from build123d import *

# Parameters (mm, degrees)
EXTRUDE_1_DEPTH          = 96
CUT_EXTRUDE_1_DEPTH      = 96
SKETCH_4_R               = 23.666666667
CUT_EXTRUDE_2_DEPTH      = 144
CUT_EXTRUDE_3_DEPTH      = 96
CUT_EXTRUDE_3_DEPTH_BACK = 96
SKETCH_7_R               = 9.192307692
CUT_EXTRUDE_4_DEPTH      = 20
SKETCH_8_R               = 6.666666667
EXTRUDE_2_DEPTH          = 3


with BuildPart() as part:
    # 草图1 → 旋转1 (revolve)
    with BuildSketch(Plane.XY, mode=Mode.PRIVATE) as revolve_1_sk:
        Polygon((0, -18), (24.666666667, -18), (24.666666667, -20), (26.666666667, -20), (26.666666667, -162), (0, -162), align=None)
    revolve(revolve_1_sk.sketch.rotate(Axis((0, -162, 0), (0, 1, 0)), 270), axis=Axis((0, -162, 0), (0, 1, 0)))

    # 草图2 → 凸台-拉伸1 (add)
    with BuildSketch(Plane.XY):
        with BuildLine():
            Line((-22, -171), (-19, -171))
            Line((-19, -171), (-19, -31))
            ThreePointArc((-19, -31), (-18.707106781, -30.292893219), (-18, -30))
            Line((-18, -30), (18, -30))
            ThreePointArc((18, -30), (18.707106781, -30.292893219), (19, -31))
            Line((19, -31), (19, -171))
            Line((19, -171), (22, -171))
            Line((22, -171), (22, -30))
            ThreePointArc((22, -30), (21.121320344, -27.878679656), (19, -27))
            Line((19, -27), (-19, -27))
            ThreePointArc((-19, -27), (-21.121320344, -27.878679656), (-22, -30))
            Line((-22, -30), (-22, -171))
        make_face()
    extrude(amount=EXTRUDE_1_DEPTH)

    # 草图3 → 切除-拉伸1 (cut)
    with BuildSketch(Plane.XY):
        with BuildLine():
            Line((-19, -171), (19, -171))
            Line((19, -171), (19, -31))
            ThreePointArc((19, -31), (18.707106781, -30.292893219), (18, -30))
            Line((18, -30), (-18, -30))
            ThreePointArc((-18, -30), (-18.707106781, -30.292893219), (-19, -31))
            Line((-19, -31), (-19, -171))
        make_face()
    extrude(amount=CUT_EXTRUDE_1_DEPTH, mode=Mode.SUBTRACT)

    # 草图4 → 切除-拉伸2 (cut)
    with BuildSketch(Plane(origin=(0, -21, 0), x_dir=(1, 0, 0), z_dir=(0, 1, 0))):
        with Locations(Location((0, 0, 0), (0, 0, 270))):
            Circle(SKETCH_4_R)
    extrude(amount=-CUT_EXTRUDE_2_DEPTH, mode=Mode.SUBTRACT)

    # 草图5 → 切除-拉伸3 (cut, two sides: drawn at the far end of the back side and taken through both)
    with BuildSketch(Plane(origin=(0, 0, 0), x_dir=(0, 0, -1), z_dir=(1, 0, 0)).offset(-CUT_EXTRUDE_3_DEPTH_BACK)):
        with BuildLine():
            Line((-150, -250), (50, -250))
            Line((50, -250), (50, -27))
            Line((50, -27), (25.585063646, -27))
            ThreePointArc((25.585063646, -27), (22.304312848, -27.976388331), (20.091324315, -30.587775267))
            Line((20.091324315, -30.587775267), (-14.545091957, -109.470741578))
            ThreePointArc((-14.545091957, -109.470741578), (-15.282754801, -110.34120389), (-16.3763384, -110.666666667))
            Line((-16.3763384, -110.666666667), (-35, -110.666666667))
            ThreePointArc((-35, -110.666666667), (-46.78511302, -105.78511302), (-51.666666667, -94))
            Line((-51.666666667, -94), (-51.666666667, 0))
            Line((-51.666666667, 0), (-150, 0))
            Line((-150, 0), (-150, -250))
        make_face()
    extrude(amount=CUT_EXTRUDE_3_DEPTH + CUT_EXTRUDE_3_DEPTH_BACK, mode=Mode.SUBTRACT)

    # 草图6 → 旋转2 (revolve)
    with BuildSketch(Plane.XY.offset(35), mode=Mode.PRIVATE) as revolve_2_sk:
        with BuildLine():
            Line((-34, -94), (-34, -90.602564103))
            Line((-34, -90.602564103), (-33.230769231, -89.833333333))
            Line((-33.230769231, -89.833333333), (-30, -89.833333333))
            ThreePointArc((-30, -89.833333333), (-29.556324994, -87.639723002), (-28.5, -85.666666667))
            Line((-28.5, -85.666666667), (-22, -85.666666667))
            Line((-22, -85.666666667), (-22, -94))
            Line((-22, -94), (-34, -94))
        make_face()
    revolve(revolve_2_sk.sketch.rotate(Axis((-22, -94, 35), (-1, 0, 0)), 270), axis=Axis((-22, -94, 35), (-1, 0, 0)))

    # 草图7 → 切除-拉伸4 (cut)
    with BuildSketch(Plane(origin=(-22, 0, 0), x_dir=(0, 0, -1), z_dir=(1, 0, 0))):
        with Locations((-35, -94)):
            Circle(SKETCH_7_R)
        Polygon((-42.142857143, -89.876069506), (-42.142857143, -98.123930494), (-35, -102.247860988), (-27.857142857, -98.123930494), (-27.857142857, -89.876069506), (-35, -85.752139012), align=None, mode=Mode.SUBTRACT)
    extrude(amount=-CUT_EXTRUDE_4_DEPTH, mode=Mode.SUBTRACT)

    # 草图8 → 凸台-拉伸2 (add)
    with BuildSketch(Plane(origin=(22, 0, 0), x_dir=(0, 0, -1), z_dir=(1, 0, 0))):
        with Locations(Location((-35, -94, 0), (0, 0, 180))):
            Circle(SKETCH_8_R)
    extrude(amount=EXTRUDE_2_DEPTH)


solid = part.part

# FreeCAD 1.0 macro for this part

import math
import FreeCAD as App
import Part
import Sketcher

V = App.Vector
Q = App.Units.Quantity


def add_polygon(sketch, points):
    """Adds a closed chain of lines whose ends are joined by coincident constraints."""
    first, n = sketch.GeometryCount, len(points)
    for a, b in zip(points, points[1:] + points[:1]):
        sketch.addGeometry(Part.LineSegment(App.Vector(*a, 0), App.Vector(*b, 0)), False)
    for i in range(n):
        sketch.addConstraint(Sketcher.Constraint("Coincident", first + i, 2, first + (i + 1) % n, 1))

doc = App.newDocument("Part")
body = doc.addObject("PartDesign::Body", "Body")

sketch1 = body.newObject("Sketcher::SketchObject", "Sketch")
sketch1.AttachmentSupport = (doc.getObject("XY_Plane"), [""])
sketch1.MapMode = "FlatFace"
add_polygon(sketch1, [(24.666667, -18), (0, -18), (0, -162), (26.666667, -162), (26.666667, -20), (24.666667, -20)])
sketch1.addConstraint([
    Sketcher.Constraint("Horizontal", 0),
    Sketcher.Constraint("Vertical", 1),
    Sketcher.Constraint("Horizontal", 2),
    Sketcher.Constraint("Vertical", 3),
    Sketcher.Constraint("Horizontal", 4),
    Sketcher.Constraint("Vertical", 5),
    Sketcher.Constraint("PointOnObject", 0, 2, -2),
    Sketcher.Constraint("Equal", 4, 5),
    Sketcher.Constraint("DistanceX", 4, 2, 4, 1, 2.0),
    Sketcher.Constraint("DistanceY", 1, 2, 1, 1, 144.0),
    Sketcher.Constraint("DistanceY", 0, 2, -1, 1, 18.0),
    Sketcher.Constraint("DistanceX", 0, 2, 0, 1, 24.666667),
])
revolution = body.newObject("PartDesign::Revolution", "Revolution")
revolution.Profile = sketch1
revolution.ReferenceAxis = (sketch1, ["V_Axis"])
revolution.Angle = 360

sketch2 = body.newObject("Sketcher::SketchObject", "Sketch001")
sketch2.AttachmentSupport = (doc.getObject("XY_Plane"), [""])
sketch2.MapMode = "FlatFace"
sketch2.addGeometry([
    Part.LineSegment(V(-22, -171, 0), V(-19, -171, 0)),
    Part.LineSegment(V(-19, -171, 0), V(-19, -31, 0)),
    Part.ArcOfCircle(Part.Circle(V(-18, -31, 0), V(0, 0, 1), 1), math.radians(90), math.radians(180)),
    Part.LineSegment(V(-18, -30, 0), V(18, -30, 0)),
    Part.ArcOfCircle(Part.Circle(V(18, -31, 0), V(0, 0, 1), 1), math.radians(0), math.radians(90)),
    Part.LineSegment(V(19, -31, 0), V(19, -171, 0)),
    Part.LineSegment(V(19, -171, 0), V(22, -171, 0)),
    Part.LineSegment(V(22, -171, 0), V(22, -30, 0)),
    Part.ArcOfCircle(Part.Circle(V(19, -30, 0), V(0, 0, 1), 3), math.radians(0), math.radians(90)),
    Part.LineSegment(V(19, -27, 0), V(-19, -27, 0)),
    Part.ArcOfCircle(Part.Circle(V(-19, -30, 0), V(0, 0, 1), 3), math.radians(90), math.radians(180)),
    Part.LineSegment(V(-22, -30, 0), V(-22, -171, 0)),
], False)
sketch2.addConstraint([
    Sketcher.Constraint("Coincident", 0, 2, 1, 1),
    Sketcher.Constraint("Tangent", 1, 2, 2, 2),
    Sketcher.Constraint("Tangent", 2, 1, 3, 1),
    Sketcher.Constraint("Tangent", 3, 2, 4, 2),
    Sketcher.Constraint("Tangent", 4, 1, 5, 1),
    Sketcher.Constraint("Coincident", 5, 2, 6, 1),
    Sketcher.Constraint("Coincident", 6, 2, 7, 1),
    Sketcher.Constraint("Tangent", 7, 2, 8, 1),
    Sketcher.Constraint("Tangent", 8, 2, 9, 1),
    Sketcher.Constraint("Tangent", 9, 2, 10, 1),
    Sketcher.Constraint("Tangent", 10, 2, 11, 1),
    Sketcher.Constraint("Coincident", 11, 2, 0, 1),
    Sketcher.Constraint("Horizontal", 0),
    Sketcher.Constraint("Vertical", 1),
    Sketcher.Constraint("Horizontal", 3),
    Sketcher.Constraint("Vertical", 5),
    Sketcher.Constraint("Horizontal", 6),
    Sketcher.Constraint("Vertical", 7),
    Sketcher.Constraint("Horizontal", 9),
    Sketcher.Constraint("Vertical", 11),
    Sketcher.Constraint("Equal", 2, 4),
    Sketcher.Constraint("Equal", 8, 10),
    Sketcher.Constraint("Symmetric", 0, 2, 5, 2, -2),
    Sketcher.Constraint("Horizontal", 10, 3, 2, 1),
    Sketcher.Constraint("Vertical", 10, 3, 0, 2),
    Sketcher.Constraint("Vertical", 8, 3, 4, 1),
    Sketcher.Constraint("Radius", 2, 1.0),
    Sketcher.Constraint("Radius", 8, 3.0),
    Sketcher.Constraint("DistanceX", 3, 1, 3, 2, 36.0),
    Sketcher.Constraint("DistanceY", 1, 1, 1, 2, 140.0),
    Sketcher.Constraint("DistanceY", 2, 3, -1, 1, 31.0),
])
pad1 = body.newObject("PartDesign::Pad", "Pad")
pad1.Profile = sketch2
pad1.Length = 96

sketch3 = body.newObject("Sketcher::SketchObject", "Sketch002")
sketch3.AttachmentSupport = (doc.getObject("XY_Plane"), [""])
sketch3.MapMode = "FlatFace"
sketch3.addGeometry([
    Part.LineSegment(V(-19, -171, 0), V(19, -171, 0)),
    Part.LineSegment(V(19, -171, 0), V(19, -31, 0)),
    Part.ArcOfCircle(Part.Circle(V(18, -31, 0), V(0, 0, 1), 1), math.radians(0), math.radians(90)),
    Part.LineSegment(V(18, -30, 0), V(-18, -30, 0)),
    Part.ArcOfCircle(Part.Circle(V(-18, -31, 0), V(0, 0, 1), 1), math.radians(90), math.radians(180)),
    Part.LineSegment(V(-19, -31, 0), V(-19, -171, 0)),
], False)
sketch3.addConstraint([
    Sketcher.Constraint("Coincident", 0, 2, 1, 1),
    Sketcher.Constraint("Tangent", 1, 2, 2, 1),
    Sketcher.Constraint("Tangent", 2, 2, 3, 1),
    Sketcher.Constraint("Tangent", 3, 2, 4, 1),
    Sketcher.Constraint("Tangent", 4, 2, 5, 1),
    Sketcher.Constraint("Coincident", 5, 2, 0, 1),
    Sketcher.Constraint("Horizontal", 0),
    Sketcher.Constraint("Vertical", 1),
    Sketcher.Constraint("Horizontal", 3),
    Sketcher.Constraint("Vertical", 5),
    Sketcher.Constraint("Equal", 2, 4),
    Sketcher.Constraint("Radius", 2, 1.0),
    Sketcher.Constraint("DistanceX", 0, 1, 0, 2, 38.0),
    Sketcher.Constraint("DistanceY", 1, 1, 1, 2, 140.0),
    Sketcher.Constraint("DistanceX", -1, 1, 2, 3, 18.0),
    Sketcher.Constraint("DistanceY", 2, 3, -1, 1, 31.0),
])
pocket1 = body.newObject("PartDesign::Pocket", "Pocket")
pocket1.Profile = sketch3
pocket1.Length = 96
pocket1.Reversed = True

sketch4 = body.newObject("Sketcher::SketchObject", "Sketch003")
sketch4.AttachmentSupport = (doc.getObject("XZ_Plane"), [""])
sketch4.MapMode = "FlatFace"
sketch4.AttachmentOffset = App.Placement(V(0, 0, 21), App.Rotation())
sketch4.addGeometry(Part.Circle(V(0, 0, 0), V(0, 0, 1), 23.666667), False)
sketch4.addConstraint([
    Sketcher.Constraint("Coincident", 0, 3, -1, 1),
    Sketcher.Constraint("Diameter", 0, 47.333333),
])
pocket2 = body.newObject("PartDesign::Pocket", "Pocket001")
pocket2.Profile = sketch4
pocket2.Length = 144
pocket2.Reversed = True

sketch5 = body.newObject("Sketcher::SketchObject", "Sketch004")
sketch5.AttachmentSupport = (doc.getObject("YZ_Plane"), [""])
sketch5.MapMode = "FlatFace"
sketch5.addGeometry([
    Part.LineSegment(V(-250, 150, 0), V(-250, -50, 0)),
    Part.LineSegment(V(-250, -50, 0), V(-27, -50, 0)),
    Part.LineSegment(V(-27, -50, 0), V(-27, -25.585064, 0)),
    Part.ArcOfCircle(Part.Circle(V(-33, -25.585064, 0), V(0, 0, 1), 6), math.radians(0), math.radians(66.294388)),
    Part.LineSegment(V(-30.587775, -20.091324, 0), V(-109.470742, 14.545092, 0)),
    Part.ArcOfCircle(Part.Circle(V(-108.666667, 16.376338, 0), V(0, 0, 1), 2), math.radians(180), math.radians(246.294388)),
    Part.LineSegment(V(-110.666667, 16.376338, 0), V(-110.666667, 35, 0)),
    Part.ArcOfCircle(Part.Circle(V(-94, 35, 0), V(0, 0, 1), 16.666667), math.radians(90), math.radians(180)),
    Part.LineSegment(V(-94, 51.666667, 0), V(0, 51.666667, 0)),
    Part.LineSegment(V(0, 51.666667, 0), V(0, 150, 0)),
    Part.LineSegment(V(0, 150, 0), V(-250, 150, 0)),
], False)
sketch5.addConstraint([
    Sketcher.Constraint("Coincident", 0, 2, 1, 1),
    Sketcher.Constraint("Coincident", 1, 2, 2, 1),
    Sketcher.Constraint("Tangent", 2, 2, 3, 1),
    Sketcher.Constraint("Tangent", 3, 2, 4, 1),
    Sketcher.Constraint("Tangent", 4, 2, 5, 2),
    Sketcher.Constraint("Tangent", 5, 1, 6, 1),
    Sketcher.Constraint("Tangent", 6, 2, 7, 2),
    Sketcher.Constraint("Tangent", 7, 1, 8, 1),
    Sketcher.Constraint("Coincident", 8, 2, 9, 1),
    Sketcher.Constraint("Coincident", 9, 2, 10, 1),
    Sketcher.Constraint("Coincident", 10, 2, 0, 1),
    Sketcher.Constraint("Vertical", 0),
    Sketcher.Constraint("Horizontal", 1),
    Sketcher.Constraint("Vertical", 2),
    Sketcher.Constraint("Vertical", 6),
    Sketcher.Constraint("Horizontal", 8),
    Sketcher.Constraint("Vertical", 9),
    Sketcher.Constraint("Horizontal", 10),
    Sketcher.Constraint("PointOnObject", 8, 2, -2),
    Sketcher.Constraint("Radius", 3, 6.0),
    Sketcher.Constraint("Radius", 5, 2.0),
    Sketcher.Constraint("DistanceX", 1, 1, 1, 2, 223.0),
    Sketcher.Constraint("DistanceX", 8, 1, 8, 2, 94.0),
    Sketcher.Constraint("DistanceX", 10, 2, 10, 1, 250.0),
    Sketcher.Constraint("DistanceY", 0, 2, 0, 1, 200.0),
    Sketcher.Constraint("DistanceY", -1, 1, 7, 3, 35.0),
    Sketcher.Constraint("DistanceY", 0, 2, -1, 1, 50.0),
    Sketcher.Constraint("Radius", 7, 16.666667),
    Sketcher.Constraint("DistanceY", 6, 1, 6, 2, 18.623662),
    Sketcher.Constraint("DistanceY", 2, 1, 2, 2, 24.414936),
])
pocket3 = body.newObject("PartDesign::Pocket", "Pocket002")
pocket3.Profile = sketch5
pocket3.Type = "ThroughAll"
pocket3.Midplane = True

sketch6 = body.newObject("Sketcher::SketchObject", "Sketch005")
sketch6.AttachmentSupport = (doc.getObject("XY_Plane"), [""])
sketch6.MapMode = "FlatFace"
sketch6.AttachmentOffset = App.Placement(V(0, 0, 35), App.Rotation())
sketch6.addGeometry([
    Part.LineSegment(V(-34, -90.602564, 0), V(-34, -94, 0)),
    Part.LineSegment(V(-34, -94, 0), V(-22, -94, 0)),
    Part.LineSegment(V(-22, -94, 0), V(-22, -85.666667, 0)),
    Part.LineSegment(V(-22, -85.666667, 0), V(-28.5, -85.666667, 0)),
    Part.ArcOfCircle(Part.Circle(V(-22.31873, -90.245257, 0), V(0, 0, 1), 7.692308), math.radians(143.471912), math.radians(176.930336)),
    Part.LineSegment(V(-30, -89.833333, 0), V(-33.230769, -89.833333, 0)),
    Part.LineSegment(V(-33.230769, -89.833333, 0), V(-34, -90.602564, 0)),
], False)
sketch6.addGeometry(Part.LineSegment(V(-22, -94, 0), V(-34, -94, 0)), True)
sketch6.addConstraint([
    Sketcher.Constraint("Coincident", 0, 2, 1, 1),
    Sketcher.Constraint("Coincident", 1, 2, 2, 1),
    Sketcher.Constraint("Coincident", 2, 2, 3, 1),
    Sketcher.Constraint("Coincident", 3, 2, 4, 1),
    Sketcher.Constraint("Coincident", 4, 2, 5, 1),
    Sketcher.Constraint("Coincident", 5, 2, 6, 1),
    Sketcher.Constraint("Coincident", 6, 2, 0, 1),
    Sketcher.Constraint("Vertical", 0),
    Sketcher.Constraint("Horizontal", 1),
    Sketcher.Constraint("Vertical", 2),
    Sketcher.Constraint("Horizontal", 3),
    Sketcher.Constraint("Horizontal", 5),
    Sketcher.Constraint("Horizontal", 7),
    Sketcher.Constraint("Coincident", 7, 1, 1, 2),
    Sketcher.Constraint("Vertical", 6, 2, 7, 2),
    Sketcher.Constraint("DistanceX", 1, 1, 1, 2, 12.0),
    Sketcher.Constraint("Angle", 6, Q("-135 deg")),
    Sketcher.Constraint("DistanceX", 3, 2, 3, 1, 6.5),
    Sketcher.Constraint("DistanceX", 0, 2, -1, 1, 34.0),
    Sketcher.Constraint("DistanceY", 0, 2, -1, 1, 94.0),
    Sketcher.Constraint("DistanceX", 4, 2, -1, 1, 30.0),
    Sketcher.Constraint("Radius", 4, 7.692308),
    Sketcher.Constraint("DistanceX", 5, 2, 5, 1, 3.230769),
    Sketcher.Constraint("DistanceY", 0, 2, 0, 1, 3.397436),
    Sketcher.Constraint("DistanceY", 2, 1, 2, 2, 8.333333),
])
revolution2 = body.newObject("PartDesign::Revolution", "Revolution001")
revolution2.Profile = sketch6
revolution2.ReferenceAxis = (sketch6, ["Axis0"])
revolution2.Angle = 360

sketch7 = body.newObject("Sketcher::SketchObject", "Sketch006")
sketch7.AttachmentSupport = (doc.getObject("YZ_Plane"), [""])
sketch7.MapMode = "FlatFace"
sketch7.AttachmentOffset = App.Placement(V(0, 0, -22), App.Rotation())
sketch7.addGeometry(Part.Circle(V(-94, 35, 0), V(0, 0, 1), 9.192308), False)
add_polygon(sketch7, [(-98.12393, 42.142857), (-89.87607, 42.142857), (-85.752139, 35), (-89.87607, 27.857143), (-98.12393, 27.857143), (-102.247861, 35)])
sketch7.addConstraint([
    Sketcher.Constraint("Horizontal", 1),
    Sketcher.Constraint("Horizontal", 4),
    Sketcher.Constraint("Parallel", 2, 5),
    Sketcher.Constraint("Parallel", 3, 6),
    Sketcher.Constraint("Horizontal", 0, 3, 2, 2),
    Sketcher.Constraint("Horizontal", 2, 2, 5, 2),
    Sketcher.Constraint("Vertical", 1, 2, 3, 2),
    Sketcher.Constraint("Vertical", 4, 2, 6, 2),
    Sketcher.Constraint("Angle", 2, Q("-60 deg")),
    Sketcher.Constraint("DistanceX", 0, 3, -1, 1, 94.0),
    Sketcher.Constraint("DistanceY", -1, 1, 0, 3, 35.0),
    Sketcher.Constraint("Diameter", 0, 18.384615),
    Sketcher.Constraint("DistanceX", 1, 1, 1, 2, 8.247861),
    Sketcher.Constraint("Distance", 2, 8.247861),
    Sketcher.Constraint("DistanceX", 1, 2, -1, 1, 89.87607),
])
pocket4 = body.newObject("PartDesign::Pocket", "Pocket003")
pocket4.Profile = sketch7
pocket4.Length = 20

sketch8 = body.newObject("Sketcher::SketchObject", "Sketch007")
sketch8.AttachmentSupport = (doc.getObject("YZ_Plane"), [""])
sketch8.MapMode = "FlatFace"
sketch8.AttachmentOffset = App.Placement(V(0, 0, 22), App.Rotation())
sketch8.addGeometry(Part.Circle(V(-94, 35, 0), V(0, 0, 1), 6.666667), False)
sketch8.addConstraint([
    Sketcher.Constraint("DistanceX", 0, 3, -1, 1, 94.0),
    Sketcher.Constraint("DistanceY", -1, 1, 0, 3, 35.0),
    Sketcher.Constraint("Diameter", 0, 13.333333),
])
pad2 = body.newObject("PartDesign::Pad", "Pad001")
pad2.Profile = sketch8
pad2.Length = 3

doc.recompute()
